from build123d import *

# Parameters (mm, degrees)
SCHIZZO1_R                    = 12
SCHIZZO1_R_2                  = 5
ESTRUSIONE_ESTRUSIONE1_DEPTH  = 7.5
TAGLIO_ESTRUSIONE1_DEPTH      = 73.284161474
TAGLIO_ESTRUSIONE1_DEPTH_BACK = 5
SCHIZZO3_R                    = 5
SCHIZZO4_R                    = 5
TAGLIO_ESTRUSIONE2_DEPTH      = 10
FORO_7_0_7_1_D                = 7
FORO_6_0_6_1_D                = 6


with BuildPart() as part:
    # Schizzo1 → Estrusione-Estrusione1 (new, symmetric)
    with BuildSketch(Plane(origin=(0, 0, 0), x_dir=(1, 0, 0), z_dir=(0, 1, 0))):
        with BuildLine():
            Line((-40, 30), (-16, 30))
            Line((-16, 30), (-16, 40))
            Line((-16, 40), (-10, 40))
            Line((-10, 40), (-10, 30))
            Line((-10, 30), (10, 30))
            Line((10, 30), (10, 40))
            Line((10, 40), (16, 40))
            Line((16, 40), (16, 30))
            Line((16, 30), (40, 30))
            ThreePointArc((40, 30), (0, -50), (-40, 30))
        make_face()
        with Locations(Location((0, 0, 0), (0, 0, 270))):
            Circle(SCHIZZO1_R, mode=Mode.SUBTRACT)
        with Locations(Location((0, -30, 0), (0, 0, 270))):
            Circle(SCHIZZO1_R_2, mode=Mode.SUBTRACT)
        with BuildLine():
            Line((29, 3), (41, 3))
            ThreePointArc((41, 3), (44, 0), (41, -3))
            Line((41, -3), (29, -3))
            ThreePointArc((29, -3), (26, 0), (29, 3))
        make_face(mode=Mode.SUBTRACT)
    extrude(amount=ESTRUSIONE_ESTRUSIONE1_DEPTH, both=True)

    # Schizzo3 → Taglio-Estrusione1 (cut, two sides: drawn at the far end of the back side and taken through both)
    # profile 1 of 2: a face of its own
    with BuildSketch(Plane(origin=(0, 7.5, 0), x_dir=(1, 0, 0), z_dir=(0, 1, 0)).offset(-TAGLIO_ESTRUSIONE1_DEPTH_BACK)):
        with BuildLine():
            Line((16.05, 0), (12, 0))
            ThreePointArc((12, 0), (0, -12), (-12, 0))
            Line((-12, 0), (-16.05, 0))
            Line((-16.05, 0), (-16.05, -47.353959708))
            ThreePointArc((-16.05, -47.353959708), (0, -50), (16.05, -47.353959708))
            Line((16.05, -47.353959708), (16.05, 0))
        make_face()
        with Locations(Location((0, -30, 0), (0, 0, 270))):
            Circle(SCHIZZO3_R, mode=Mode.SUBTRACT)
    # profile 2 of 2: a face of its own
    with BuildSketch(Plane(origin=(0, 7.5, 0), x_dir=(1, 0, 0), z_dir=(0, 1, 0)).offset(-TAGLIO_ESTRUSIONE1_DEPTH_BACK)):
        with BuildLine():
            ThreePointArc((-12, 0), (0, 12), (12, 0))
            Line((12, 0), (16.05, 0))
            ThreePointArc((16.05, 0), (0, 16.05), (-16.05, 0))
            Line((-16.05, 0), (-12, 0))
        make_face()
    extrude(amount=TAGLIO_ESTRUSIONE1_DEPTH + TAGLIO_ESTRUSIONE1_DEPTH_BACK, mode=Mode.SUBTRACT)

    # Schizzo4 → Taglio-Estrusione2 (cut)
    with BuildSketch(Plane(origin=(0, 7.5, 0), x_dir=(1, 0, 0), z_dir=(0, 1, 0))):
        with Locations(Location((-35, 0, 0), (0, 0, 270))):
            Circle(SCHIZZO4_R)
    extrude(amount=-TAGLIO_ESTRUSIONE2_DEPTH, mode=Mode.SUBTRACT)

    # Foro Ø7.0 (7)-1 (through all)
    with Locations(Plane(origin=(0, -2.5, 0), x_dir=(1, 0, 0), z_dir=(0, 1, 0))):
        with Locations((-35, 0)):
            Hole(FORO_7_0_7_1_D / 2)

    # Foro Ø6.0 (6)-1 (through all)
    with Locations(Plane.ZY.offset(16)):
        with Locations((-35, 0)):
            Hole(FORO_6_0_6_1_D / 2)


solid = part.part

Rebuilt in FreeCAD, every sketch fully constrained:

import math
import FreeCAD as App
import Part
import Sketcher

doc = App.newDocument("Part")
body = doc.addObject("PartDesign::Body", "Body")

sketch1 = body.newObject("Sketcher::SketchObject", "Sketch")
sketch1.AttachmentSupport = (doc.getObject("XZ_Plane"), [""])
sketch1.MapMode = "FlatFace"
sketch1.addGeometry([
    Part.LineSegment(App.Vector(-16, -30, 0), App.Vector(-40, -30, 0)),
    Part.ArcOfCircle(Part.Circle(App.Vector(0, 0, 0), App.Vector(0, 0, 1), 50), math.radians(-37), math.radians(217)),
    Part.LineSegment(App.Vector(40, -30, 0), App.Vector(16, -30, 0)),
    Part.LineSegment(App.Vector(16, -30, 0), App.Vector(16, -40, 0)),
    Part.LineSegment(App.Vector(16, -40, 0), App.Vector(10, -40, 0)),
    Part.LineSegment(App.Vector(10, -40, 0), App.Vector(10, -30, 0)),
    Part.LineSegment(App.Vector(10, -30, 0), App.Vector(-10, -30, 0)),
    Part.LineSegment(App.Vector(-10, -30, 0), App.Vector(-10, -40, 0)),
    Part.LineSegment(App.Vector(-10, -40, 0), App.Vector(-16, -40, 0)),
    Part.LineSegment(App.Vector(-16, -40, 0), App.Vector(-16, -30, 0)),
    Part.Circle(App.Vector(0, 30, 0), App.Vector(0, 0, 1), 5),
    Part.LineSegment(App.Vector(29, -3, 0), App.Vector(41, -3, 0)),
    Part.ArcOfCircle(Part.Circle(App.Vector(41, 0, 0), App.Vector(0, 0, 1), 3), math.radians(-90), math.radians(90)),
    Part.LineSegment(App.Vector(41, 3, 0), App.Vector(29, 3, 0)),
    Part.ArcOfCircle(Part.Circle(App.Vector(29, 0, 0), App.Vector(0, 0, 1), 3), math.radians(90), math.radians(270)),
    Part.Circle(App.Vector(0, 0, 0), App.Vector(0, 0, 1), 12),
], False)
sketch1.addConstraint([
    Sketcher.Constraint("Coincident", 0, 2, 1, 2),
    Sketcher.Constraint("Coincident", 1, 1, 2, 1),
    Sketcher.Constraint("Coincident", 2, 2, 3, 1),
    Sketcher.Constraint("Coincident", 3, 2, 4, 1),
    Sketcher.Constraint("Coincident", 4, 2, 5, 1),
    Sketcher.Constraint("Coincident", 5, 2, 6, 1),
    Sketcher.Constraint("Coincident", 6, 2, 7, 1),
    Sketcher.Constraint("Coincident", 7, 2, 8, 1),
    Sketcher.Constraint("Coincident", 8, 2, 9, 1),
    Sketcher.Constraint("Coincident", 9, 2, 0, 1),
    Sketcher.Constraint("Tangent", 11, 2, 12, 1),
    Sketcher.Constraint("Tangent", 12, 2, 13, 1),
    Sketcher.Constraint("Tangent", 13, 2, 14, 1),
    Sketcher.Constraint("Tangent", 14, 2, 11, 1),
    Sketcher.Constraint("Horizontal", 0),
    Sketcher.Constraint("Horizontal", 2),
    Sketcher.Constraint("Vertical", 3),
    Sketcher.Constraint("Horizontal", 4),
    Sketcher.Constraint("Vertical", 5),
    Sketcher.Constraint("Horizontal", 6),
    Sketcher.Constraint("Vertical", 7),
    Sketcher.Constraint("Horizontal", 8),
    Sketcher.Constraint("Vertical", 9),
    Sketcher.Constraint("Horizontal", 11),
    Sketcher.Constraint("Horizontal", 13),
    Sketcher.Constraint("Coincident", 1, 3, -1, 1),
    Sketcher.Constraint("Coincident", 15, 3, -1, 1),
    Sketcher.Constraint("Symmetric", 4, 2, 7, 2, -2),
    Sketcher.Constraint("Symmetric", 2, 2, 9, 2, -2),
    Sketcher.Constraint("PointOnObject", 10, 3, -2),
    Sketcher.Constraint("PointOnObject", 12, 3, -1),
    Sketcher.Constraint("Horizontal", 2, 2, 5, 2),
    Sketcher.Constraint("Diameter", 10, 10.0),
    Sketcher.Constraint("Diameter", 15, 24.0),
    Sketcher.Constraint("Radius", 1, 50.0),
    Sketcher.Constraint("Radius", 12, 3.0),
    Sketcher.Constraint("DistanceX", 0, 2, 0, 1, 24.0),
    Sketcher.Constraint("DistanceX", 4, 2, 4, 1, 6.0),
    Sketcher.Constraint("DistanceX", 6, 2, 6, 1, 20.0),
    Sketcher.Constraint("DistanceX", 11, 1, 11, 2, 12.0),
    Sketcher.Constraint("DistanceY", 3, 2, 3, 1, 10.0),
    Sketcher.Constraint("DistanceY", -1, 1, 10, 3, 30.0),
    Sketcher.Constraint("DistanceX", -1, 1, 12, 3, 41.0),
])
pad1 = body.newObject("PartDesign::Pad", "Pad")
pad1.Profile = sketch1
pad1.Length = 15
pad1.Midplane = True

sketch2 = body.newObject("Sketcher::SketchObject", "Sketch001")
sketch2.AttachmentSupport = (doc.getObject("XZ_Plane"), [""])
sketch2.MapMode = "FlatFace"
sketch2.AttachmentOffset = App.Placement(App.Vector(0, 0, -7.5), App.Rotation())
sketch2.addGeometry([
    Part.LineSegment(App.Vector(16, 47, 0), App.Vector(16, 0, 0)),
    Part.ArcOfCircle(Part.Circle(App.Vector(0, 0, 0), App.Vector(0, 0, 1), 16), math.radians(180), math.radians(360)),
    Part.LineSegment(App.Vector(-16, 0, 0), App.Vector(-16, 47, 0)),
    Part.ArcOfCircle(Part.Circle(App.Vector(0, 0, 0), App.Vector(0, 0, 1), 50), math.radians(71), math.radians(109)),
    Part.Circle(App.Vector(0, 0, 0), App.Vector(0, 0, 1), 12),
    Part.Circle(App.Vector(0, 30, 0), App.Vector(0, 0, 1), 5),
], False)
sketch2.addConstraint([
    Sketcher.Constraint("Tangent", 0, 2, 1, 2),
    Sketcher.Constraint("Tangent", 1, 1, 2, 1),
    Sketcher.Constraint("Coincident", 2, 2, 3, 2),
    Sketcher.Constraint("Coincident", 3, 1, 0, 1),
    Sketcher.Constraint("Vertical", 0),
    Sketcher.Constraint("Vertical", 2),
    Sketcher.Constraint("Coincident", 1, 3, -1, 1),
    Sketcher.Constraint("Coincident", 3, 3, -1, 1),
    Sketcher.Constraint("Coincident", 4, 3, -1, 1),
    Sketcher.Constraint("PointOnObject", 5, 3, -2),
    Sketcher.Constraint("Diameter", 4, 24.0),
    Sketcher.Constraint("Diameter", 5, 10.0),
    Sketcher.Constraint("Radius", 3, 50.0),
    Sketcher.Constraint("Radius", 1, 16.05),
    Sketcher.Constraint("DistanceY", -1, 1, 5, 3, 30.0),
])
pocket1 = body.newObject("PartDesign::Pocket", "Pocket")
pocket1.Profile = sketch2
pocket1.Type = "TwoLengths"
pocket1.Length = 73.284161
pocket1.Length2 = 5

sketch3 = body.newObject("Sketcher::SketchObject", "Sketch002")
sketch3.AttachmentSupport = (doc.getObject("XZ_Plane"), [""])
sketch3.MapMode = "FlatFace"
sketch3.AttachmentOffset = App.Placement(App.Vector(0, 0, -7.5), App.Rotation())
sketch3.addGeometry(Part.Circle(App.Vector(-35, 0, 0), App.Vector(0, 0, 1), 5), False)
sketch3.addConstraint([
    Sketcher.Constraint("PointOnObject", 0, 3, -1),
    Sketcher.Constraint("Diameter", 0, 10.0),
    Sketcher.Constraint("DistanceX", 0, 3, -1, 1, 35.0),
])
pocket2 = body.newObject("PartDesign::Pocket", "Pocket001")
pocket2.Profile = sketch3
pocket2.Length = 10
pocket2.Reversed = True

sketch4 = body.newObject("Sketcher::SketchObject", "Sketch003")
sketch4.AttachmentSupport = (doc.getObject("XZ_Plane"), [""])
sketch4.MapMode = "FlatFace"
sketch4.AttachmentOffset = App.Placement(App.Vector(0, 0, 2.5), App.Rotation())
sketch4.addGeometry(Part.Circle(App.Vector(-35, 0, 0), App.Vector(0, 0, 1), 3.5), False)
sketch4.addConstraint([
    Sketcher.Constraint("PointOnObject", 0, 3, -1),
    Sketcher.Constraint("Diameter", 0, 7.0),
    Sketcher.Constraint("DistanceX", 0, 3, -1, 1, 35.0),
])
doc.recompute()
hole = body.newObject("PartDesign::Hole", "Hole")
hole.Profile = sketch4
hole.ThreadType = "None"
hole.Diameter = 7
hole.DepthType = "ThroughAll"
hole.Reversed = True

sketch5 = body.newObject("Sketcher::SketchObject", "Sketch004")
sketch5.AttachmentSupport = (doc.getObject("YZ_Plane"), [""])
sketch5.MapMode = "FlatFace"
sketch5.AttachmentOffset = App.Placement(App.Vector(0, 0, -16), App.Rotation())
sketch5.addGeometry(Part.Circle(App.Vector(0, -35, 0), App.Vector(0, 0, 1), 3), False)
sketch5.addConstraint([
    Sketcher.Constraint("PointOnObject", 0, 3, -2),
    Sketcher.Constraint("Diameter", 0, 6.0),
    Sketcher.Constraint("DistanceY", 0, 3, -1, 1, 35.0),
])
doc.recompute()
hole2 = body.newObject("PartDesign::Hole", "Hole001")
hole2.Profile = sketch5
hole2.ThreadType = "None"
hole2.Diameter = 6
hole2.DepthType = "ThroughAll"
hole2.Reversed = True

doc.recompute()
